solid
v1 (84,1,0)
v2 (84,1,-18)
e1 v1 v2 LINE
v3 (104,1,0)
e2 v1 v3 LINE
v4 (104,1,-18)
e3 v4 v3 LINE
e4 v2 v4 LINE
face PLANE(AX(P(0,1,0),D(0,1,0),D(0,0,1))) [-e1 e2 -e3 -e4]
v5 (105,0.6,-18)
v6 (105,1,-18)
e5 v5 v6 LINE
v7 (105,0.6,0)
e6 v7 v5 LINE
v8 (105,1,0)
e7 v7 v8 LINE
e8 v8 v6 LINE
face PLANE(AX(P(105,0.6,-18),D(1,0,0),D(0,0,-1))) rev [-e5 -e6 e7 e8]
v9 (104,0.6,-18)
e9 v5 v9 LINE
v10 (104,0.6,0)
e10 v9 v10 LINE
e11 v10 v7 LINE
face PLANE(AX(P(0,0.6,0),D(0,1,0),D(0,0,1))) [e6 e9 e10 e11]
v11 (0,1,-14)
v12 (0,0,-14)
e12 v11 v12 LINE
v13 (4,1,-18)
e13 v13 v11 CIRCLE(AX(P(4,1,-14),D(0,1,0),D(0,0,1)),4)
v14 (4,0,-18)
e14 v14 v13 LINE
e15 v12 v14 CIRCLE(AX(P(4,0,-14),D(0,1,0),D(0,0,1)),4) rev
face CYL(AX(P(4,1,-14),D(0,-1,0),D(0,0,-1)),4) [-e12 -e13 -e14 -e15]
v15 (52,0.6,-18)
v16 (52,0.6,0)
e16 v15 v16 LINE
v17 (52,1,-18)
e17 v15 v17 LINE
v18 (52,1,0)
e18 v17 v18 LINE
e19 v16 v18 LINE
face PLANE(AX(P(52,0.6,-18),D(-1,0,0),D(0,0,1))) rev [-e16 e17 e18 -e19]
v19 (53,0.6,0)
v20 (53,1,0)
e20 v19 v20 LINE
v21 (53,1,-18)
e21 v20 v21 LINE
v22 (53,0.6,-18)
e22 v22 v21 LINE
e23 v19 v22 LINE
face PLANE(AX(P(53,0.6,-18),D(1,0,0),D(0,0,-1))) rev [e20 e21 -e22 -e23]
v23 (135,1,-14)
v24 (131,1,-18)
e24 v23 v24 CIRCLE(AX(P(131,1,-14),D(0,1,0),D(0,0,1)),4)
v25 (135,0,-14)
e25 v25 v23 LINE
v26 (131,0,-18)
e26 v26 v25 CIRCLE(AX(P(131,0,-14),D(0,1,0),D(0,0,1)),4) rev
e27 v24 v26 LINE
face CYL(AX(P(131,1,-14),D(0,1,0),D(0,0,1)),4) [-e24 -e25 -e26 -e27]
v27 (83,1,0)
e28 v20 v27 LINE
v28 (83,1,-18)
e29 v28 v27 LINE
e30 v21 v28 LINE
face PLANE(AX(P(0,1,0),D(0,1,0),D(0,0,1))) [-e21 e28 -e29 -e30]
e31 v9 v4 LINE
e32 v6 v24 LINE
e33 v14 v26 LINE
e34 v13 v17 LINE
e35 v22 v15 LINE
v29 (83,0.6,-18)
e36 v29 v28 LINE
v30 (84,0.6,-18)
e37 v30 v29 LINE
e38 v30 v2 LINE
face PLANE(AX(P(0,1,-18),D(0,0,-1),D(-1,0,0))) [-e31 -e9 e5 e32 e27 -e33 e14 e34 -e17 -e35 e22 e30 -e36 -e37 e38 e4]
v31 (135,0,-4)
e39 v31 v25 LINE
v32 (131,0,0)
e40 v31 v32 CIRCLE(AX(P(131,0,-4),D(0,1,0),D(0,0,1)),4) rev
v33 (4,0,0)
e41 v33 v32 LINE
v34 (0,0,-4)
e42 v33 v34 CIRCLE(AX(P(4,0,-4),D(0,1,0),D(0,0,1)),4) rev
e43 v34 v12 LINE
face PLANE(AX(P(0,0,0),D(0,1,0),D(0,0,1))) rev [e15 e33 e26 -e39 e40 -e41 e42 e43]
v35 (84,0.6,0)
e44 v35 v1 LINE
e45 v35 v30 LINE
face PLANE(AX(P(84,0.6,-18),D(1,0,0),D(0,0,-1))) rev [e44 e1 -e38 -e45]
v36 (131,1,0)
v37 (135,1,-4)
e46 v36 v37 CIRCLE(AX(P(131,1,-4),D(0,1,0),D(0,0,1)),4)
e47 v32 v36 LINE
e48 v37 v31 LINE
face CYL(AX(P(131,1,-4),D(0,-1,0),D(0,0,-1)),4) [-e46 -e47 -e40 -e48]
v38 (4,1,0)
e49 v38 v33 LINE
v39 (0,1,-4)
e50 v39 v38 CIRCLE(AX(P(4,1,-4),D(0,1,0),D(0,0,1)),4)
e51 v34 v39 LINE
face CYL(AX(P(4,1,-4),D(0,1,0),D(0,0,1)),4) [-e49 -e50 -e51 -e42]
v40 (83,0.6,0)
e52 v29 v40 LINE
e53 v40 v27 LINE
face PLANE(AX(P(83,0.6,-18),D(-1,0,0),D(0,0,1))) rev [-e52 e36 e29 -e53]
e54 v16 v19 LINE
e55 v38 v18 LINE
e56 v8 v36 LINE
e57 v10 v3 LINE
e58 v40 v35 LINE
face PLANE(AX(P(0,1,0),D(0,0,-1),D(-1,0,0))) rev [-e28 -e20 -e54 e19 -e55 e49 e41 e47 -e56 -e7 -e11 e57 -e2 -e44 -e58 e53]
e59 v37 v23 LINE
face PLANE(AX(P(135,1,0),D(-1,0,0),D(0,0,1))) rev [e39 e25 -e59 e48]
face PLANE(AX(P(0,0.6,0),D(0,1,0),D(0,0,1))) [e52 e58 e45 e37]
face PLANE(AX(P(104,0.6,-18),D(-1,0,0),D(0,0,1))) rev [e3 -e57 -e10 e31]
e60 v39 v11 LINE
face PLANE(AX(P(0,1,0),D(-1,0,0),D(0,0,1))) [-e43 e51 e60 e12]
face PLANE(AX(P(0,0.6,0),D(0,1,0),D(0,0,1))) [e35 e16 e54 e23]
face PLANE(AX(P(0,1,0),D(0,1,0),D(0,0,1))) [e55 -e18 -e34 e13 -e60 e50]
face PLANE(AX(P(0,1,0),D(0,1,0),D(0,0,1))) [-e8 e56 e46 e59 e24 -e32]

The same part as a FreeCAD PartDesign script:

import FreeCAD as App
import Part
import Sketcher

V = App.Vector
Q = App.Units.Quantity


def edges_at(feature, points):
    """Names of the edges that pass closest to the given points."""
    edges = feature.Shape.Edges
    near = lambda p: min(range(len(edges)), key=lambda i: edges[i].distToShape(Part.Vertex(*p))[0])
    return sorted({f"Edge{near(p) + 1}" for p in points})

doc = App.newDocument("Part")
body = doc.addObject("PartDesign::Body", "Body")

# Sketch on XZ plane
sketch1 = body.newObject("Sketcher::SketchObject", "Sketch")
sketch1.AttachmentSupport = (doc.getObject("XZ_Plane"), [""])
sketch1.MapMode = "FlatFace"
sketch1.addGeometry([
    Part.LineSegment(V(0, -18, 0), V(0, 0, 0)),
    Part.LineSegment(V(0, 0, 0), V(135, 0, 0)),
    Part.LineSegment(V(135, 0, 0), V(135, -18, 0)),
    Part.LineSegment(V(135, -18, 0), V(0, -18, 0)),
], False)
sketch1.addConstraint([
    Sketcher.Constraint("Coincident", 0, 2, 1, 1),
    Sketcher.Constraint("Coincident", 1, 2, 2, 1),
    Sketcher.Constraint("Coincident", 2, 2, 3, 1),
    Sketcher.Constraint("Coincident", 3, 2, 0, 1),
    Sketcher.Constraint("Vertical", 0),
    Sketcher.Constraint("Horizontal", 1),
    Sketcher.Constraint("Vertical", 2),
    Sketcher.Constraint("Horizontal", 3),
    Sketcher.Constraint("Coincident", 0, 2, -1, 1),
    Sketcher.Constraint("DistanceX", 1, 1, 1, 2, Q("135 mm")),
    Sketcher.Constraint("DistanceY", 0, 1, 0, 2, Q("18 mm")),
])
pad1 = body.newObject("PartDesign::Pad", "Pad")
pad1.Profile = sketch1
pad1.Length = 1
pad1.Reversed = True

# Sketch on XZ plane
sketch2 = body.newObject("Sketcher::SketchObject", "Sketch001")
sketch2.AttachmentSupport = (doc.getObject("XZ_Plane"), [""])
sketch2.MapMode = "FlatFace"
sketch2.AttachmentOffset = App.Placement(V(0, 0, -1), App.Rotation())
sketch2.addGeometry([
    Part.LineSegment(V(52, -18, 0), V(52, 0, 0)),  # 0
    Part.LineSegment(V(52, 0, 0), V(53, 0, 0)),  # 1
    Part.LineSegment(V(53, 0, 0), V(53, -18, 0)),  # 2
    Part.LineSegment(V(53, -18, 0), V(52, -18, 0)),  # 3
    Part.LineSegment(V(83, -18, 0), V(83, 0, 0)),  # 4
    Part.LineSegment(V(83, 0, 0), V(84, 0, 0)),  # 5
    Part.LineSegment(V(84, 0, 0), V(84, -18, 0)),  # 6
    Part.LineSegment(V(84, -18, 0), V(83, -18, 0)),  # 7
    Part.LineSegment(V(104, -18, 0), V(104, 0, 0)),  # 8
    Part.LineSegment(V(104, 0, 0), V(105, 0, 0)),  # 9
    Part.LineSegment(V(105, 0, 0), V(105, -18, 0)),  # 10
    Part.LineSegment(V(105, -18, 0), V(104, -18, 0)),  # 11
], False)
sketch2.addConstraint([
    Sketcher.Constraint("Coincident", 0, 2, 1, 1),
    Sketcher.Constraint("Coincident", 1, 2, 2, 1),
    Sketcher.Constraint("Coincident", 2, 2, 3, 1),
    Sketcher.Constraint("Coincident", 3, 2, 0, 1),
    Sketcher.Constraint("Coincident", 4, 2, 5, 1),
    Sketcher.Constraint("Coincident", 5, 2, 6, 1),
    Sketcher.Constraint("Coincident", 6, 2, 7, 1),
    Sketcher.Constraint("Coincident", 7, 2, 4, 1),
    Sketcher.Constraint("Coincident", 8, 2, 9, 1),
    Sketcher.Constraint("Coincident", 9, 2, 10, 1),
    Sketcher.Constraint("Coincident", 10, 2, 11, 1),
    Sketcher.Constraint("Coincident", 11, 2, 8, 1),
    Sketcher.Constraint("Vertical", 0),
    Sketcher.Constraint("Horizontal", 1),
    Sketcher.Constraint("Vertical", 2),
    Sketcher.Constraint("Horizontal", 3),
    Sketcher.Constraint("Vertical", 4),
    Sketcher.Constraint("Horizontal", 5),
    Sketcher.Constraint("Vertical", 6),
    Sketcher.Constraint("Horizontal", 7),
    Sketcher.Constraint("Vertical", 8),
    Sketcher.Constraint("Horizontal", 9),
    Sketcher.Constraint("Vertical", 10),
    Sketcher.Constraint("Horizontal", 11),
    Sketcher.Constraint("PointOnObject", 0, 2, -1),
    Sketcher.Constraint("PointOnObject", 4, 2, -1),
    Sketcher.Constraint("PointOnObject", 8, 2, -1),
    Sketcher.Constraint("Horizontal", 3, 2, 6, 2),
    Sketcher.Constraint("Horizontal", 7, 2, 10, 2),
    Sketcher.Constraint("Equal", 3, 5),
    Sketcher.Constraint("Equal", 7, 9),
    Sketcher.Constraint("DistanceX", 1, 1, 1, 2, Q("1 mm")),
    Sketcher.Constraint("DistanceY", 0, 1, 0, 2, Q("18 mm")),
    Sketcher.Constraint("DistanceX", -1, 1, 0, 2, Q("52 mm")),
    Sketcher.Constraint("DistanceX", -1, 1, 4, 2, Q("83 mm")),
    Sketcher.Constraint("DistanceX", -1, 1, 8, 2, Q("104 mm")),
])
pocket1 = body.newObject("PartDesign::Pocket", "Pocket")
pocket1.Profile = sketch2
pocket1.Length = 0.4
pocket1.Reversed = True
doc.recompute()

fillet = body.newObject("PartDesign::Fillet", "Fillet")
fillet.Base = (pocket1, edges_at(pocket1, [
    (0, 0.5, 0),
    (0, 0.5, -18),
    (135, 0.5, -18),
    (135, 0.5, 0),
]))
fillet.Radius = 4

doc.recompute()
